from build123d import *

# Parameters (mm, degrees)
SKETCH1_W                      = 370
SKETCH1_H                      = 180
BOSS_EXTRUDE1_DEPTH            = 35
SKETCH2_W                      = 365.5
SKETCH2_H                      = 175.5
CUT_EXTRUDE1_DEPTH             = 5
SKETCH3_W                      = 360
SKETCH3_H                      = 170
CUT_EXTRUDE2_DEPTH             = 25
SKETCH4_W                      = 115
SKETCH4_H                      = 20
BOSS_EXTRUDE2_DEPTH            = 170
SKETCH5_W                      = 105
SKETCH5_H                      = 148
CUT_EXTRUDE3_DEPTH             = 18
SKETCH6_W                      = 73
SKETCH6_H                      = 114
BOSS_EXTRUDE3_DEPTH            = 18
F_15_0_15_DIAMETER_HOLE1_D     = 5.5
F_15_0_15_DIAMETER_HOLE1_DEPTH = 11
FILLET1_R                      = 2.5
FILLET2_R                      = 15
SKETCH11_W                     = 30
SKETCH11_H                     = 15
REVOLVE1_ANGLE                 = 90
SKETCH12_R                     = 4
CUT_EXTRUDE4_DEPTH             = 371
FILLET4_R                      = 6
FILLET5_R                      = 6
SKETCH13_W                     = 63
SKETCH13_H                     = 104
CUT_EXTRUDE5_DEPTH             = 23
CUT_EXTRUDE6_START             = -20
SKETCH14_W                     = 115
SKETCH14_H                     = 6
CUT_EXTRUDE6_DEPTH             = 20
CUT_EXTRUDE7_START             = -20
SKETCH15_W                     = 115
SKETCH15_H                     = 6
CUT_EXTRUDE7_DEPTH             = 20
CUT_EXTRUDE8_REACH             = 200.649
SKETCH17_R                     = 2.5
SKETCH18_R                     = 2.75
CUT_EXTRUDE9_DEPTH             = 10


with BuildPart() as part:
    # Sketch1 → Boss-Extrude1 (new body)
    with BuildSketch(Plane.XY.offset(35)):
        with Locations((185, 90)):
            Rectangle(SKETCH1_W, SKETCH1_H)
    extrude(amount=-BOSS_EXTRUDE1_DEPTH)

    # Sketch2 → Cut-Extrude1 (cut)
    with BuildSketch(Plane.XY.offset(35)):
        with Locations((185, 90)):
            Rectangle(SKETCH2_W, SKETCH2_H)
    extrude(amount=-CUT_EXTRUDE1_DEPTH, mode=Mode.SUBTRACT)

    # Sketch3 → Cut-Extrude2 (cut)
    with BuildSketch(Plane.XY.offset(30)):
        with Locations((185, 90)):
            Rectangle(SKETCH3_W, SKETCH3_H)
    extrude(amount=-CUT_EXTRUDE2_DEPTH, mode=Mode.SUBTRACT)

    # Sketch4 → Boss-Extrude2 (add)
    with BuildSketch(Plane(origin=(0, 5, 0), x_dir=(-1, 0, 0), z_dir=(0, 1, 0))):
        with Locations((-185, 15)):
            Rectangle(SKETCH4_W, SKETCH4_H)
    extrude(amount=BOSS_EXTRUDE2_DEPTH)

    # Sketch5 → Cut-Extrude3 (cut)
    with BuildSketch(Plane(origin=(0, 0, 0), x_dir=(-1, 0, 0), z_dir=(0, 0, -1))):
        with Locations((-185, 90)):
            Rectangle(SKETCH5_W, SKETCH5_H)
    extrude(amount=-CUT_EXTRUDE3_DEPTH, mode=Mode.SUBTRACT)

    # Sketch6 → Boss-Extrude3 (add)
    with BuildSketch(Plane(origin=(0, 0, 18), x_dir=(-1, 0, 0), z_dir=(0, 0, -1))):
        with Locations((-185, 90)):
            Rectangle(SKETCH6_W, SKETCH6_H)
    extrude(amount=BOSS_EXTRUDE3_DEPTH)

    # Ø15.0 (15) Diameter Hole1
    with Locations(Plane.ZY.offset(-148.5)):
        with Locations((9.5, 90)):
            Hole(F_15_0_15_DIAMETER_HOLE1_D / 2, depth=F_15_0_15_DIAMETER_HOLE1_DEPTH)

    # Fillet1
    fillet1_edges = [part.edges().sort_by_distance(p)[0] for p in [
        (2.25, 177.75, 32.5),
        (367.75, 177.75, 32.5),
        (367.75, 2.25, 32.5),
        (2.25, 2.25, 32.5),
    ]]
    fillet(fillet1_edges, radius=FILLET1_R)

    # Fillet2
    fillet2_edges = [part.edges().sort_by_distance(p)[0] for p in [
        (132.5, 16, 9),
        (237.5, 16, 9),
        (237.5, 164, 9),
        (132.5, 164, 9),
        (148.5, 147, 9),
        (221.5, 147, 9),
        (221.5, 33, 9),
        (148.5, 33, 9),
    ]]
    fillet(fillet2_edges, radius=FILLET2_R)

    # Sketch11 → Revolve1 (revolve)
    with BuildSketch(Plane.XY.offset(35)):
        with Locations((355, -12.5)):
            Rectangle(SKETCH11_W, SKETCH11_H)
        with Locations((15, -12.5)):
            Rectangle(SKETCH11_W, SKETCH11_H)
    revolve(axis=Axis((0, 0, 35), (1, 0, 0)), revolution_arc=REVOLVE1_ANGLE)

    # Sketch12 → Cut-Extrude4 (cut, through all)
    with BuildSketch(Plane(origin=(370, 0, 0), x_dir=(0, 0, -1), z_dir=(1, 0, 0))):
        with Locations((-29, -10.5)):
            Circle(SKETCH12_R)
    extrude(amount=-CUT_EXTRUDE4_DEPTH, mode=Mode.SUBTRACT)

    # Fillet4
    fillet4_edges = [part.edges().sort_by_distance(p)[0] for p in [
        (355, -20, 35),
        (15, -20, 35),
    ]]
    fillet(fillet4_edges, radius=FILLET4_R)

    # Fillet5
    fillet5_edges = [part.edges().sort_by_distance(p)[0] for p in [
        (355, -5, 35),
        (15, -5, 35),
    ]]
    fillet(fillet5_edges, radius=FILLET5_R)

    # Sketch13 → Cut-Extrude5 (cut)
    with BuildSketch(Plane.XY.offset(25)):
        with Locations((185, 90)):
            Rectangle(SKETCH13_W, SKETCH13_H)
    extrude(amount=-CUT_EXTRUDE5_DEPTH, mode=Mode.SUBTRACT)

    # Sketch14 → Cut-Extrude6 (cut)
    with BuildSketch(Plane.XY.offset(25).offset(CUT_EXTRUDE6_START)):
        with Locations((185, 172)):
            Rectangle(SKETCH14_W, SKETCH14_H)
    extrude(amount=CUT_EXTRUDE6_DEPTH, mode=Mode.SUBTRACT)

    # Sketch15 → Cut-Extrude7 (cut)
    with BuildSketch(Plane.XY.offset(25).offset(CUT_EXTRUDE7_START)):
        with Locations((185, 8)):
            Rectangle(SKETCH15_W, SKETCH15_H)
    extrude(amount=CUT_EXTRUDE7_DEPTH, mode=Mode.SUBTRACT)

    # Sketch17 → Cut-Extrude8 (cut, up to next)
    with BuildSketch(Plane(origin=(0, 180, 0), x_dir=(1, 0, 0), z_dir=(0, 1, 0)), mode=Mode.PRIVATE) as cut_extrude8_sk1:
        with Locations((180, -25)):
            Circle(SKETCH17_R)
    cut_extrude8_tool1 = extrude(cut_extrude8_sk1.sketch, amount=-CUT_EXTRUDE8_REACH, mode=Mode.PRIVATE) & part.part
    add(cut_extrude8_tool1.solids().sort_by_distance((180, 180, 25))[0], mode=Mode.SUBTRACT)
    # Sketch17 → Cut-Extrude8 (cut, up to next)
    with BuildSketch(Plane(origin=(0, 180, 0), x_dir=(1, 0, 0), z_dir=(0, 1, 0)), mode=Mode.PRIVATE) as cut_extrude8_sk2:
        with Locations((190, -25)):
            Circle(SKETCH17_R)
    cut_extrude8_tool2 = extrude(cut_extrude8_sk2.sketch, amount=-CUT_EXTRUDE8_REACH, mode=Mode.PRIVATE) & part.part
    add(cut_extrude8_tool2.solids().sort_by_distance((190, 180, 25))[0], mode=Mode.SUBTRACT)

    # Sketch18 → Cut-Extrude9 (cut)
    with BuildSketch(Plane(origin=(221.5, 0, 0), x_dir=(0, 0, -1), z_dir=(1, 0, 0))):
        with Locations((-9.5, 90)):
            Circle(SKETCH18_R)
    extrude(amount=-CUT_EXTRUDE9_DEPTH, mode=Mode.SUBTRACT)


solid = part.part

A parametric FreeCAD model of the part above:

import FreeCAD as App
import Part
import Sketcher
Q = App.Units.Quantity


def edges_at(feature, points):
    """Names of the edges that pass closest to the given points."""
    edges = feature.Shape.Edges
    near = lambda p: min(range(len(edges)), key=lambda i: edges[i].distToShape(Part.Vertex(*p))[0])
    return sorted({f"Edge{near(p) + 1}" for p in points})


def add_polygon(sketch, points):
    """Adds a closed chain of lines whose ends are joined by coincident constraints."""
    first, n = sketch.GeometryCount, len(points)
    for a, b in zip(points, points[1:] + points[:1]):
        sketch.addGeometry(Part.LineSegment(App.Vector(*a, 0), App.Vector(*b, 0)), False)
    for i in range(n):
        sketch.addConstraint(Sketcher.Constraint("Coincident", first + i, 2, first + (i + 1) % n, 1))

doc = App.newDocument("Part")
body = doc.addObject("PartDesign::Body", "Body")

# Sketch on XY plane
sketch1 = doc.addObject("Sketcher::SketchObject", "Sketch")
body.addObject(sketch1)
sketch1.AttachmentSupport = (doc.XY_Plane, [""])
sketch1.MapMode = "FlatFace"
sketch1.AttachmentOffset = App.Placement(App.Vector(0, 0, 35), App.Rotation())
add_polygon(sketch1, [(0, 180), (0, 0), (370, 0), (370, 180)])  # lines 0-3
sketch1.addConstraint(Sketcher.Constraint("Vertical", 0))
sketch1.addConstraint(Sketcher.Constraint("Horizontal", 1))
sketch1.addConstraint(Sketcher.Constraint("Vertical", 2))
sketch1.addConstraint(Sketcher.Constraint("Horizontal", 3))
sketch1.addConstraint(Sketcher.Constraint("Coincident", 0, 2, -1, 1))
sketch1.addConstraint(Sketcher.Constraint("DistanceX", 1, 1, 1, 2, Q("370 mm")))
sketch1.addConstraint(Sketcher.Constraint("DistanceY", 0, 2, 0, 1, Q("180 mm")))
pad1 = doc.addObject("PartDesign::Pad", "Pad")
body.addObject(pad1)
pad1.Profile = sketch1
pad1.Length = 35
pad1.Reversed = True

# Sketch on XY plane
sketch2 = doc.addObject("Sketcher::SketchObject", "Sketch001")
body.addObject(sketch2)
sketch2.AttachmentSupport = (doc.XY_Plane, [""])
sketch2.MapMode = "FlatFace"
sketch2.AttachmentOffset = App.Placement(App.Vector(0, 0, 35), App.Rotation())
add_polygon(sketch2, [(2, 178), (2, 2), (368, 2), (368, 178)])  # lines 0-3
sketch2.addConstraint(Sketcher.Constraint("Vertical", 0))
sketch2.addConstraint(Sketcher.Constraint("Horizontal", 1))
sketch2.addConstraint(Sketcher.Constraint("Vertical", 2))
sketch2.addConstraint(Sketcher.Constraint("Horizontal", 3))
sketch2.addConstraint(Sketcher.Constraint("DistanceX", 1, 1, 1, 2, Q("365.5 mm")))
sketch2.addConstraint(Sketcher.Constraint("DistanceY", 0, 2, 0, 1, Q("175.5 mm")))
sketch2.addConstraint(Sketcher.Constraint("DistanceX", -1, 1, 0, 2, Q("2.25 mm")))
sketch2.addConstraint(Sketcher.Constraint("DistanceY", -1, 1, 0, 2, Q("2.25 mm")))
pocket1 = doc.addObject("PartDesign::Pocket", "Pocket")
body.addObject(pocket1)
pocket1.Profile = sketch2
pocket1.Length = 5

# Sketch on XY plane
sketch3 = doc.addObject("Sketcher::SketchObject", "Sketch002")
body.addObject(sketch3)
sketch3.AttachmentSupport = (doc.XY_Plane, [""])
sketch3.MapMode = "FlatFace"
sketch3.AttachmentOffset = App.Placement(App.Vector(0, 0, 30), App.Rotation())
add_polygon(sketch3, [(5, 175), (5, 5), (365, 5), (365, 175)])  # lines 0-3
sketch3.addConstraint(Sketcher.Constraint("Vertical", 0))
sketch3.addConstraint(Sketcher.Constraint("Horizontal", 1))
sketch3.addConstraint(Sketcher.Constraint("Vertical", 2))
sketch3.addConstraint(Sketcher.Constraint("Horizontal", 3))
sketch3.addConstraint(Sketcher.Constraint("DistanceX", 1, 1, 1, 2, Q("360 mm")))
sketch3.addConstraint(Sketcher.Constraint("DistanceY", 0, 2, 0, 1, Q("170 mm")))
sketch3.addConstraint(Sketcher.Constraint("DistanceX", -1, 1, 0, 2, Q("5 mm")))
sketch3.addConstraint(Sketcher.Constraint("DistanceY", -1, 1, 0, 2, Q("5 mm")))
pocket2 = doc.addObject("PartDesign::Pocket", "Pocket001")
body.addObject(pocket2)
pocket2.Profile = sketch3
pocket2.Length = 25

# Sketch on XZ plane
sketch4 = doc.addObject("Sketcher::SketchObject", "Sketch003")
body.addObject(sketch4)
sketch4.AttachmentSupport = (doc.XZ_Plane, [""])
sketch4.MapMode = "FlatFace"
sketch4.AttachmentOffset = App.Placement(App.Vector(0, 0, -5), App.Rotation())
add_polygon(sketch4, [(242, 25), (242, 5), (128, 5), (128, 25)])  # lines 0-3
sketch4.addConstraint(Sketcher.Constraint("Vertical", 0))
sketch4.addConstraint(Sketcher.Constraint("Horizontal", 1))
sketch4.addConstraint(Sketcher.Constraint("Vertical", 2))
sketch4.addConstraint(Sketcher.Constraint("Horizontal", 3))
sketch4.addConstraint(Sketcher.Constraint("DistanceX", 1, 2, 1, 1, Q("115 mm")))
sketch4.addConstraint(Sketcher.Constraint("DistanceY", 0, 2, 0, 1, Q("20 mm")))
sketch4.addConstraint(Sketcher.Constraint("DistanceY", -1, 1, 0, 2, Q("5 mm")))
sketch4.addConstraint(Sketcher.Constraint("DistanceX", -1, 1, 0, 2, Q("242.5 mm")))
pad2 = doc.addObject("PartDesign::Pad", "Pad001")
body.addObject(pad2)
pad2.Profile = sketch4
pad2.Length = 170
pad2.Reversed = True

# Sketch on XY plane
sketch5 = doc.addObject("Sketcher::SketchObject", "Sketch004")
body.addObject(sketch5)
sketch5.AttachmentSupport = (doc.XY_Plane, [""])
sketch5.MapMode = "FlatFace"
add_polygon(sketch5, [(238, 164), (238, 16), (132, 16), (132, 164)])  # lines 0-3
sketch5.addConstraint(Sketcher.Constraint("Vertical", 0))
sketch5.addConstraint(Sketcher.Constraint("Horizontal", 1))
sketch5.addConstraint(Sketcher.Constraint("Vertical", 2))
sketch5.addConstraint(Sketcher.Constraint("Horizontal", 3))
sketch5.addConstraint(Sketcher.Constraint("DistanceX", 1, 2, 1, 1, Q("105 mm")))
sketch5.addConstraint(Sketcher.Constraint("DistanceY", 0, 2, 0, 1, Q("148 mm")))
sketch5.addConstraint(Sketcher.Constraint("DistanceY", -1, 1, 0, 2, Q("16 mm")))
sketch5.addConstraint(Sketcher.Constraint("DistanceX", -1, 1, 0, 2, Q("237.5 mm")))
pocket3 = doc.addObject("PartDesign::Pocket", "Pocket002")
body.addObject(pocket3)
pocket3.Profile = sketch5
pocket3.Length = 18
pocket3.Reversed = True

# Sketch on XY plane
sketch6 = doc.addObject("Sketcher::SketchObject", "Sketch005")
body.addObject(sketch6)
sketch6.AttachmentSupport = (doc.XY_Plane, [""])
sketch6.MapMode = "FlatFace"
sketch6.AttachmentOffset = App.Placement(App.Vector(0, 0, 18), App.Rotation())
add_polygon(sketch6, [(222, 147), (222, 33), (148, 33), (148, 147)])  # lines 0-3
sketch6.addConstraint(Sketcher.Constraint("Vertical", 0))
sketch6.addConstraint(Sketcher.Constraint("Horizontal", 1))
sketch6.addConstraint(Sketcher.Constraint("Vertical", 2))
sketch6.addConstraint(Sketcher.Constraint("Horizontal", 3))
sketch6.addConstraint(Sketcher.Constraint("DistanceX", 1, 2, 1, 1, Q("73 mm")))
sketch6.addConstraint(Sketcher.Constraint("DistanceY", 0, 2, 0, 1, Q("114 mm")))
sketch6.addConstraint(Sketcher.Constraint("DistanceY", -1, 1, 0, 2, Q("33 mm")))
sketch6.addConstraint(Sketcher.Constraint("DistanceX", -1, 1, 0, 2, Q("221.5 mm")))
pad3 = doc.addObject("PartDesign::Pad", "Pad002")
body.addObject(pad3)
pad3.Profile = sketch6
pad3.Length = 18
pad3.Reversed = True

# Sketch on YZ plane
sketch7 = doc.addObject("Sketcher::SketchObject", "Sketch006")
body.addObject(sketch7)
sketch7.AttachmentSupport = (doc.YZ_Plane, [""])
sketch7.MapMode = "FlatFace"
sketch7.AttachmentOffset = App.Placement(App.Vector(0, 0, 148.5), App.Rotation())
sketch7.addGeometry(Part.Circle(App.Vector(90, 9.5, 0), App.Vector(0, 0, 1), 2.8), False)
sketch7.addConstraint(Sketcher.Constraint("Diameter", 0, Q("5.5 mm")))
sketch7.addConstraint(Sketcher.Constraint("DistanceX", -1, 1, 0, 3, Q("90 mm")))
sketch7.addConstraint(Sketcher.Constraint("DistanceY", -1, 1, 0, 3, Q("9.5 mm")))
doc.recompute()
hole = doc.addObject("PartDesign::Hole", "Hole")
body.addObject(hole)
hole.Profile = sketch7
hole.ThreadType = "None"
hole.Diameter = 5.5
hole.DepthType = "Dimension"
hole.Depth = 11
hole.DrillPoint = "Flat"
hole.Reversed = True
doc.recompute()

fillet = doc.addObject("PartDesign::Fillet", "Fillet")
body.addObject(fillet)
fillet.Base = (hole, edges_at(hole, [
    (2.25, 177.75, 32.5),
    (367.75, 177.75, 32.5),
    (367.75, 2.25, 32.5),
    (2.25, 2.25, 32.5),
]))
fillet.Radius = 2.5
doc.recompute()

fillet2 = doc.addObject("PartDesign::Fillet", "Fillet001")
body.addObject(fillet2)
fillet2.Base = (fillet, edges_at(fillet, [
    (132.5, 16, 9),
    (237.5, 16, 9),
    (237.5, 164, 9),
    (132.5, 164, 9),
    (148.5, 147, 9),
    (221.5, 147, 9),
    (221.5, 33, 9),
    (148.5, 33, 9),
]))
fillet2.Radius = 15

# Sketch on XY plane
sketch8 = doc.addObject("Sketcher::SketchObject", "Sketch007")
body.addObject(sketch8)
sketch8.AttachmentSupport = (doc.XY_Plane, [""])
sketch8.MapMode = "FlatFace"
sketch8.AttachmentOffset = App.Placement(App.Vector(0, 0, 35), App.Rotation())
add_polygon(sketch8, [(340, -5), (340, -20), (370, -20), (370, -5)])  # lines 0-3
add_polygon(sketch8, [(0, -5), (0, -20), (30, -20), (30, -5)])  # lines 4-7
sketch8.addConstraint(Sketcher.Constraint("Vertical", 0))
sketch8.addConstraint(Sketcher.Constraint("Horizontal", 1))
sketch8.addConstraint(Sketcher.Constraint("Vertical", 2))
sketch8.addConstraint(Sketcher.Constraint("Horizontal", 3))
sketch8.addConstraint(Sketcher.Constraint("Vertical", 4))
sketch8.addConstraint(Sketcher.Constraint("Horizontal", 5))
sketch8.addConstraint(Sketcher.Constraint("Vertical", 6))
sketch8.addConstraint(Sketcher.Constraint("Horizontal", 7))
sketch8.addConstraint(Sketcher.Constraint("PointOnObject", 4, 2, -2))
sketch8.addConstraint(Sketcher.Constraint("Horizontal", 1, 2, 4, 2))
sketch8.addConstraint(Sketcher.Constraint("Horizontal", 3, 2, 6, 2))
sketch8.addConstraint(Sketcher.Constraint("Equal", 3, 5))
sketch8.addConstraint(Sketcher.Constraint("DistanceX", 1, 1, 1, 2, Q("30 mm")))
sketch8.addConstraint(Sketcher.Constraint("DistanceY", 0, 2, 0, 1, Q("15 mm")))
sketch8.addConstraint(Sketcher.Constraint("DistanceX", -1, 1, 0, 2, Q("340 mm")))
sketch8.addConstraint(Sketcher.Constraint("DistanceY", 0, 2, -1, 1, Q("20 mm")))
revolution = doc.addObject("PartDesign::Revolution", "Revolution")
body.addObject(revolution)
revolution.Profile = sketch8
revolution.ReferenceAxis = (sketch8, ["H_Axis"])
revolution.Angle = 90

# Sketch on YZ plane
sketch9 = doc.addObject("Sketcher::SketchObject", "Sketch008")
body.addObject(sketch9)
sketch9.AttachmentSupport = (doc.YZ_Plane, [""])
sketch9.MapMode = "FlatFace"
sketch9.AttachmentOffset = App.Placement(App.Vector(0, 0, 370), App.Rotation())
sketch9.addGeometry(Part.Circle(App.Vector(-10.5, 29, 0), App.Vector(0, 0, 1), 4), False)
sketch9.addConstraint(Sketcher.Constraint("Diameter", 0, Q("8 mm")))
sketch9.addConstraint(Sketcher.Constraint("DistanceY", -1, 1, 0, 3, Q("29 mm")))
sketch9.addConstraint(Sketcher.Constraint("DistanceX", 0, 3, -1, 1, Q("10.5 mm")))
pocket4 = doc.addObject("PartDesign::Pocket", "Pocket003")
body.addObject(pocket4)
pocket4.Profile = sketch9
pocket4.Type = "ThroughAll"
doc.recompute()

fillet3 = doc.addObject("PartDesign::Fillet", "Fillet002")
body.addObject(fillet3)
fillet3.Base = (pocket4, edges_at(pocket4, [(355, -20, 35), (15, -20, 35)]))
fillet3.Radius = 6
doc.recompute()

fillet4 = doc.addObject("PartDesign::Fillet", "Fillet003")
body.addObject(fillet4)
fillet4.Base = (fillet3, edges_at(fillet3, [(355, -5, 35), (15, -5, 35)]))
fillet4.Radius = 6

# Sketch on XY plane
sketch10 = doc.addObject("Sketcher::SketchObject", "Sketch009")
body.addObject(sketch10)
sketch10.AttachmentSupport = (doc.XY_Plane, [""])
sketch10.MapMode = "FlatFace"
sketch10.AttachmentOffset = App.Placement(App.Vector(0, 0, 25), App.Rotation())
add_polygon(sketch10, [(154, 142), (154, 38), (216, 38), (216, 142)])  # lines 0-3
sketch10.addConstraint(Sketcher.Constraint("Vertical", 0))
sketch10.addConstraint(Sketcher.Constraint("Horizontal", 1))
sketch10.addConstraint(Sketcher.Constraint("Vertical", 2))
sketch10.addConstraint(Sketcher.Constraint("Horizontal", 3))
sketch10.addConstraint(Sketcher.Constraint("DistanceX", 1, 1, 1, 2, Q("63 mm")))
sketch10.addConstraint(Sketcher.Constraint("DistanceY", 0, 2, 0, 1, Q("104 mm")))
sketch10.addConstraint(Sketcher.Constraint("DistanceY", -1, 1, 0, 2, Q("38 mm")))
sketch10.addConstraint(Sketcher.Constraint("DistanceX", -1, 1, 0, 2, Q("153.5 mm")))
pocket5 = doc.addObject("PartDesign::Pocket", "Pocket004")
body.addObject(pocket5)
pocket5.Profile = sketch10
pocket5.Length = 23

# Sketch on XY plane
sketch11 = doc.addObject("Sketcher::SketchObject", "Sketch010")
body.addObject(sketch11)
sketch11.AttachmentSupport = (doc.XY_Plane, [""])
sketch11.MapMode = "FlatFace"
sketch11.AttachmentOffset = App.Placement(App.Vector(0, 0, 5), App.Rotation())
add_polygon(sketch11, [(128, 175), (128, 169), (242, 169), (242, 175)])  # lines 0-3
sketch11.addConstraint(Sketcher.Constraint("Vertical", 0))
sketch11.addConstraint(Sketcher.Constraint("Horizontal", 1))
sketch11.addConstraint(Sketcher.Constraint("Vertical", 2))
sketch11.addConstraint(Sketcher.Constraint("Horizontal", 3))
sketch11.addConstraint(Sketcher.Constraint("DistanceX", 1, 1, 1, 2, Q("115 mm")))
sketch11.addConstraint(Sketcher.Constraint("DistanceY", 0, 2, 0, 1, Q("6 mm")))
sketch11.addConstraint(Sketcher.Constraint("DistanceY", -1, 1, 0, 2, Q("169 mm")))
sketch11.addConstraint(Sketcher.Constraint("DistanceX", -1, 1, 0, 2, Q("127.5 mm")))
pocket6 = doc.addObject("PartDesign::Pocket", "Pocket005")
body.addObject(pocket6)
pocket6.Profile = sketch11
pocket6.Length = 20
pocket6.Reversed = True

# Sketch on XY plane
sketch12 = doc.addObject("Sketcher::SketchObject", "Sketch011")
body.addObject(sketch12)
sketch12.AttachmentSupport = (doc.XY_Plane, [""])
sketch12.MapMode = "FlatFace"
sketch12.AttachmentOffset = App.Placement(App.Vector(0, 0, 5), App.Rotation())
add_polygon(sketch12, [(128, 11), (128, 5), (242, 5), (242, 11)])  # lines 0-3
sketch12.addConstraint(Sketcher.Constraint("Vertical", 0))
sketch12.addConstraint(Sketcher.Constraint("Horizontal", 1))
sketch12.addConstraint(Sketcher.Constraint("Vertical", 2))
sketch12.addConstraint(Sketcher.Constraint("Horizontal", 3))
sketch12.addConstraint(Sketcher.Constraint("DistanceX", 1, 1, 1, 2, Q("115 mm")))
sketch12.addConstraint(Sketcher.Constraint("DistanceY", 0, 2, 0, 1, Q("6 mm")))
sketch12.addConstraint(Sketcher.Constraint("DistanceY", -1, 1, 0, 2, Q("5 mm")))
sketch12.addConstraint(Sketcher.Constraint("DistanceX", -1, 1, 0, 2, Q("127.5 mm")))
pocket7 = doc.addObject("PartDesign::Pocket", "Pocket006")
body.addObject(pocket7)
pocket7.Profile = sketch12
pocket7.Length = 20
pocket7.Reversed = True

# Sketch on XZ plane
sketch13 = doc.addObject("Sketcher::SketchObject", "Sketch012")
body.addObject(sketch13)
sketch13.AttachmentSupport = (doc.XZ_Plane, [""])
sketch13.MapMode = "FlatFace"
sketch13.AttachmentOffset = App.Placement(App.Vector(0, 0, -180), App.Rotation())
sketch13.addGeometry(Part.Circle(App.Vector(180, 25, 0), App.Vector(0, 0, 1), 2.5), False)
sketch13.addConstraint(Sketcher.Constraint("Diameter", 0, Q("5 mm")))
sketch13.addConstraint(Sketcher.Constraint("DistanceX", -1, 1, 0, 3, Q("180 mm")))
sketch13.addConstraint(Sketcher.Constraint("DistanceY", -1, 1, 0, 3, Q("25 mm")))
pocket8 = doc.addObject("PartDesign::Pocket", "Pocket007")
body.addObject(pocket8)
pocket8.Profile = sketch13
pocket8.Type = "UpToFirst"
pocket8.Reversed = True

# Sketch on XZ plane
sketch14 = doc.addObject("Sketcher::SketchObject", "Sketch013")
body.addObject(sketch14)
sketch14.AttachmentSupport = (doc.XZ_Plane, [""])
sketch14.MapMode = "FlatFace"
sketch14.AttachmentOffset = App.Placement(App.Vector(0, 0, -180), App.Rotation())
sketch14.addGeometry(Part.Circle(App.Vector(190, 25, 0), App.Vector(0, 0, 1), 2.5), False)
sketch14.addConstraint(Sketcher.Constraint("Diameter", 0, Q("5 mm")))
sketch14.addConstraint(Sketcher.Constraint("DistanceX", -1, 1, 0, 3, Q("190 mm")))
sketch14.addConstraint(Sketcher.Constraint("DistanceY", -1, 1, 0, 3, Q("25 mm")))
pocket9 = doc.addObject("PartDesign::Pocket", "Pocket008")
body.addObject(pocket9)
pocket9.Profile = sketch14
pocket9.Type = "UpToFirst"
pocket9.Reversed = True

# Sketch on YZ plane
sketch15 = doc.addObject("Sketcher::SketchObject", "Sketch014")
body.addObject(sketch15)
sketch15.AttachmentSupport = (doc.YZ_Plane, [""])
sketch15.MapMode = "FlatFace"
sketch15.AttachmentOffset = App.Placement(App.Vector(0, 0, 221.5), App.Rotation())
sketch15.addGeometry(Part.Circle(App.Vector(90, 9.5, 0), App.Vector(0, 0, 1), 2.8), False)
sketch15.addConstraint(Sketcher.Constraint("Diameter", 0, Q("5.5 mm")))
sketch15.addConstraint(Sketcher.Constraint("DistanceX", -1, 1, 0, 3, Q("90 mm")))
sketch15.addConstraint(Sketcher.Constraint("DistanceY", -1, 1, 0, 3, Q("9.5 mm")))
pocket10 = doc.addObject("PartDesign::Pocket", "Pocket009")
body.addObject(pocket10)
pocket10.Profile = sketch15
pocket10.Length = 10

doc.recompute()
